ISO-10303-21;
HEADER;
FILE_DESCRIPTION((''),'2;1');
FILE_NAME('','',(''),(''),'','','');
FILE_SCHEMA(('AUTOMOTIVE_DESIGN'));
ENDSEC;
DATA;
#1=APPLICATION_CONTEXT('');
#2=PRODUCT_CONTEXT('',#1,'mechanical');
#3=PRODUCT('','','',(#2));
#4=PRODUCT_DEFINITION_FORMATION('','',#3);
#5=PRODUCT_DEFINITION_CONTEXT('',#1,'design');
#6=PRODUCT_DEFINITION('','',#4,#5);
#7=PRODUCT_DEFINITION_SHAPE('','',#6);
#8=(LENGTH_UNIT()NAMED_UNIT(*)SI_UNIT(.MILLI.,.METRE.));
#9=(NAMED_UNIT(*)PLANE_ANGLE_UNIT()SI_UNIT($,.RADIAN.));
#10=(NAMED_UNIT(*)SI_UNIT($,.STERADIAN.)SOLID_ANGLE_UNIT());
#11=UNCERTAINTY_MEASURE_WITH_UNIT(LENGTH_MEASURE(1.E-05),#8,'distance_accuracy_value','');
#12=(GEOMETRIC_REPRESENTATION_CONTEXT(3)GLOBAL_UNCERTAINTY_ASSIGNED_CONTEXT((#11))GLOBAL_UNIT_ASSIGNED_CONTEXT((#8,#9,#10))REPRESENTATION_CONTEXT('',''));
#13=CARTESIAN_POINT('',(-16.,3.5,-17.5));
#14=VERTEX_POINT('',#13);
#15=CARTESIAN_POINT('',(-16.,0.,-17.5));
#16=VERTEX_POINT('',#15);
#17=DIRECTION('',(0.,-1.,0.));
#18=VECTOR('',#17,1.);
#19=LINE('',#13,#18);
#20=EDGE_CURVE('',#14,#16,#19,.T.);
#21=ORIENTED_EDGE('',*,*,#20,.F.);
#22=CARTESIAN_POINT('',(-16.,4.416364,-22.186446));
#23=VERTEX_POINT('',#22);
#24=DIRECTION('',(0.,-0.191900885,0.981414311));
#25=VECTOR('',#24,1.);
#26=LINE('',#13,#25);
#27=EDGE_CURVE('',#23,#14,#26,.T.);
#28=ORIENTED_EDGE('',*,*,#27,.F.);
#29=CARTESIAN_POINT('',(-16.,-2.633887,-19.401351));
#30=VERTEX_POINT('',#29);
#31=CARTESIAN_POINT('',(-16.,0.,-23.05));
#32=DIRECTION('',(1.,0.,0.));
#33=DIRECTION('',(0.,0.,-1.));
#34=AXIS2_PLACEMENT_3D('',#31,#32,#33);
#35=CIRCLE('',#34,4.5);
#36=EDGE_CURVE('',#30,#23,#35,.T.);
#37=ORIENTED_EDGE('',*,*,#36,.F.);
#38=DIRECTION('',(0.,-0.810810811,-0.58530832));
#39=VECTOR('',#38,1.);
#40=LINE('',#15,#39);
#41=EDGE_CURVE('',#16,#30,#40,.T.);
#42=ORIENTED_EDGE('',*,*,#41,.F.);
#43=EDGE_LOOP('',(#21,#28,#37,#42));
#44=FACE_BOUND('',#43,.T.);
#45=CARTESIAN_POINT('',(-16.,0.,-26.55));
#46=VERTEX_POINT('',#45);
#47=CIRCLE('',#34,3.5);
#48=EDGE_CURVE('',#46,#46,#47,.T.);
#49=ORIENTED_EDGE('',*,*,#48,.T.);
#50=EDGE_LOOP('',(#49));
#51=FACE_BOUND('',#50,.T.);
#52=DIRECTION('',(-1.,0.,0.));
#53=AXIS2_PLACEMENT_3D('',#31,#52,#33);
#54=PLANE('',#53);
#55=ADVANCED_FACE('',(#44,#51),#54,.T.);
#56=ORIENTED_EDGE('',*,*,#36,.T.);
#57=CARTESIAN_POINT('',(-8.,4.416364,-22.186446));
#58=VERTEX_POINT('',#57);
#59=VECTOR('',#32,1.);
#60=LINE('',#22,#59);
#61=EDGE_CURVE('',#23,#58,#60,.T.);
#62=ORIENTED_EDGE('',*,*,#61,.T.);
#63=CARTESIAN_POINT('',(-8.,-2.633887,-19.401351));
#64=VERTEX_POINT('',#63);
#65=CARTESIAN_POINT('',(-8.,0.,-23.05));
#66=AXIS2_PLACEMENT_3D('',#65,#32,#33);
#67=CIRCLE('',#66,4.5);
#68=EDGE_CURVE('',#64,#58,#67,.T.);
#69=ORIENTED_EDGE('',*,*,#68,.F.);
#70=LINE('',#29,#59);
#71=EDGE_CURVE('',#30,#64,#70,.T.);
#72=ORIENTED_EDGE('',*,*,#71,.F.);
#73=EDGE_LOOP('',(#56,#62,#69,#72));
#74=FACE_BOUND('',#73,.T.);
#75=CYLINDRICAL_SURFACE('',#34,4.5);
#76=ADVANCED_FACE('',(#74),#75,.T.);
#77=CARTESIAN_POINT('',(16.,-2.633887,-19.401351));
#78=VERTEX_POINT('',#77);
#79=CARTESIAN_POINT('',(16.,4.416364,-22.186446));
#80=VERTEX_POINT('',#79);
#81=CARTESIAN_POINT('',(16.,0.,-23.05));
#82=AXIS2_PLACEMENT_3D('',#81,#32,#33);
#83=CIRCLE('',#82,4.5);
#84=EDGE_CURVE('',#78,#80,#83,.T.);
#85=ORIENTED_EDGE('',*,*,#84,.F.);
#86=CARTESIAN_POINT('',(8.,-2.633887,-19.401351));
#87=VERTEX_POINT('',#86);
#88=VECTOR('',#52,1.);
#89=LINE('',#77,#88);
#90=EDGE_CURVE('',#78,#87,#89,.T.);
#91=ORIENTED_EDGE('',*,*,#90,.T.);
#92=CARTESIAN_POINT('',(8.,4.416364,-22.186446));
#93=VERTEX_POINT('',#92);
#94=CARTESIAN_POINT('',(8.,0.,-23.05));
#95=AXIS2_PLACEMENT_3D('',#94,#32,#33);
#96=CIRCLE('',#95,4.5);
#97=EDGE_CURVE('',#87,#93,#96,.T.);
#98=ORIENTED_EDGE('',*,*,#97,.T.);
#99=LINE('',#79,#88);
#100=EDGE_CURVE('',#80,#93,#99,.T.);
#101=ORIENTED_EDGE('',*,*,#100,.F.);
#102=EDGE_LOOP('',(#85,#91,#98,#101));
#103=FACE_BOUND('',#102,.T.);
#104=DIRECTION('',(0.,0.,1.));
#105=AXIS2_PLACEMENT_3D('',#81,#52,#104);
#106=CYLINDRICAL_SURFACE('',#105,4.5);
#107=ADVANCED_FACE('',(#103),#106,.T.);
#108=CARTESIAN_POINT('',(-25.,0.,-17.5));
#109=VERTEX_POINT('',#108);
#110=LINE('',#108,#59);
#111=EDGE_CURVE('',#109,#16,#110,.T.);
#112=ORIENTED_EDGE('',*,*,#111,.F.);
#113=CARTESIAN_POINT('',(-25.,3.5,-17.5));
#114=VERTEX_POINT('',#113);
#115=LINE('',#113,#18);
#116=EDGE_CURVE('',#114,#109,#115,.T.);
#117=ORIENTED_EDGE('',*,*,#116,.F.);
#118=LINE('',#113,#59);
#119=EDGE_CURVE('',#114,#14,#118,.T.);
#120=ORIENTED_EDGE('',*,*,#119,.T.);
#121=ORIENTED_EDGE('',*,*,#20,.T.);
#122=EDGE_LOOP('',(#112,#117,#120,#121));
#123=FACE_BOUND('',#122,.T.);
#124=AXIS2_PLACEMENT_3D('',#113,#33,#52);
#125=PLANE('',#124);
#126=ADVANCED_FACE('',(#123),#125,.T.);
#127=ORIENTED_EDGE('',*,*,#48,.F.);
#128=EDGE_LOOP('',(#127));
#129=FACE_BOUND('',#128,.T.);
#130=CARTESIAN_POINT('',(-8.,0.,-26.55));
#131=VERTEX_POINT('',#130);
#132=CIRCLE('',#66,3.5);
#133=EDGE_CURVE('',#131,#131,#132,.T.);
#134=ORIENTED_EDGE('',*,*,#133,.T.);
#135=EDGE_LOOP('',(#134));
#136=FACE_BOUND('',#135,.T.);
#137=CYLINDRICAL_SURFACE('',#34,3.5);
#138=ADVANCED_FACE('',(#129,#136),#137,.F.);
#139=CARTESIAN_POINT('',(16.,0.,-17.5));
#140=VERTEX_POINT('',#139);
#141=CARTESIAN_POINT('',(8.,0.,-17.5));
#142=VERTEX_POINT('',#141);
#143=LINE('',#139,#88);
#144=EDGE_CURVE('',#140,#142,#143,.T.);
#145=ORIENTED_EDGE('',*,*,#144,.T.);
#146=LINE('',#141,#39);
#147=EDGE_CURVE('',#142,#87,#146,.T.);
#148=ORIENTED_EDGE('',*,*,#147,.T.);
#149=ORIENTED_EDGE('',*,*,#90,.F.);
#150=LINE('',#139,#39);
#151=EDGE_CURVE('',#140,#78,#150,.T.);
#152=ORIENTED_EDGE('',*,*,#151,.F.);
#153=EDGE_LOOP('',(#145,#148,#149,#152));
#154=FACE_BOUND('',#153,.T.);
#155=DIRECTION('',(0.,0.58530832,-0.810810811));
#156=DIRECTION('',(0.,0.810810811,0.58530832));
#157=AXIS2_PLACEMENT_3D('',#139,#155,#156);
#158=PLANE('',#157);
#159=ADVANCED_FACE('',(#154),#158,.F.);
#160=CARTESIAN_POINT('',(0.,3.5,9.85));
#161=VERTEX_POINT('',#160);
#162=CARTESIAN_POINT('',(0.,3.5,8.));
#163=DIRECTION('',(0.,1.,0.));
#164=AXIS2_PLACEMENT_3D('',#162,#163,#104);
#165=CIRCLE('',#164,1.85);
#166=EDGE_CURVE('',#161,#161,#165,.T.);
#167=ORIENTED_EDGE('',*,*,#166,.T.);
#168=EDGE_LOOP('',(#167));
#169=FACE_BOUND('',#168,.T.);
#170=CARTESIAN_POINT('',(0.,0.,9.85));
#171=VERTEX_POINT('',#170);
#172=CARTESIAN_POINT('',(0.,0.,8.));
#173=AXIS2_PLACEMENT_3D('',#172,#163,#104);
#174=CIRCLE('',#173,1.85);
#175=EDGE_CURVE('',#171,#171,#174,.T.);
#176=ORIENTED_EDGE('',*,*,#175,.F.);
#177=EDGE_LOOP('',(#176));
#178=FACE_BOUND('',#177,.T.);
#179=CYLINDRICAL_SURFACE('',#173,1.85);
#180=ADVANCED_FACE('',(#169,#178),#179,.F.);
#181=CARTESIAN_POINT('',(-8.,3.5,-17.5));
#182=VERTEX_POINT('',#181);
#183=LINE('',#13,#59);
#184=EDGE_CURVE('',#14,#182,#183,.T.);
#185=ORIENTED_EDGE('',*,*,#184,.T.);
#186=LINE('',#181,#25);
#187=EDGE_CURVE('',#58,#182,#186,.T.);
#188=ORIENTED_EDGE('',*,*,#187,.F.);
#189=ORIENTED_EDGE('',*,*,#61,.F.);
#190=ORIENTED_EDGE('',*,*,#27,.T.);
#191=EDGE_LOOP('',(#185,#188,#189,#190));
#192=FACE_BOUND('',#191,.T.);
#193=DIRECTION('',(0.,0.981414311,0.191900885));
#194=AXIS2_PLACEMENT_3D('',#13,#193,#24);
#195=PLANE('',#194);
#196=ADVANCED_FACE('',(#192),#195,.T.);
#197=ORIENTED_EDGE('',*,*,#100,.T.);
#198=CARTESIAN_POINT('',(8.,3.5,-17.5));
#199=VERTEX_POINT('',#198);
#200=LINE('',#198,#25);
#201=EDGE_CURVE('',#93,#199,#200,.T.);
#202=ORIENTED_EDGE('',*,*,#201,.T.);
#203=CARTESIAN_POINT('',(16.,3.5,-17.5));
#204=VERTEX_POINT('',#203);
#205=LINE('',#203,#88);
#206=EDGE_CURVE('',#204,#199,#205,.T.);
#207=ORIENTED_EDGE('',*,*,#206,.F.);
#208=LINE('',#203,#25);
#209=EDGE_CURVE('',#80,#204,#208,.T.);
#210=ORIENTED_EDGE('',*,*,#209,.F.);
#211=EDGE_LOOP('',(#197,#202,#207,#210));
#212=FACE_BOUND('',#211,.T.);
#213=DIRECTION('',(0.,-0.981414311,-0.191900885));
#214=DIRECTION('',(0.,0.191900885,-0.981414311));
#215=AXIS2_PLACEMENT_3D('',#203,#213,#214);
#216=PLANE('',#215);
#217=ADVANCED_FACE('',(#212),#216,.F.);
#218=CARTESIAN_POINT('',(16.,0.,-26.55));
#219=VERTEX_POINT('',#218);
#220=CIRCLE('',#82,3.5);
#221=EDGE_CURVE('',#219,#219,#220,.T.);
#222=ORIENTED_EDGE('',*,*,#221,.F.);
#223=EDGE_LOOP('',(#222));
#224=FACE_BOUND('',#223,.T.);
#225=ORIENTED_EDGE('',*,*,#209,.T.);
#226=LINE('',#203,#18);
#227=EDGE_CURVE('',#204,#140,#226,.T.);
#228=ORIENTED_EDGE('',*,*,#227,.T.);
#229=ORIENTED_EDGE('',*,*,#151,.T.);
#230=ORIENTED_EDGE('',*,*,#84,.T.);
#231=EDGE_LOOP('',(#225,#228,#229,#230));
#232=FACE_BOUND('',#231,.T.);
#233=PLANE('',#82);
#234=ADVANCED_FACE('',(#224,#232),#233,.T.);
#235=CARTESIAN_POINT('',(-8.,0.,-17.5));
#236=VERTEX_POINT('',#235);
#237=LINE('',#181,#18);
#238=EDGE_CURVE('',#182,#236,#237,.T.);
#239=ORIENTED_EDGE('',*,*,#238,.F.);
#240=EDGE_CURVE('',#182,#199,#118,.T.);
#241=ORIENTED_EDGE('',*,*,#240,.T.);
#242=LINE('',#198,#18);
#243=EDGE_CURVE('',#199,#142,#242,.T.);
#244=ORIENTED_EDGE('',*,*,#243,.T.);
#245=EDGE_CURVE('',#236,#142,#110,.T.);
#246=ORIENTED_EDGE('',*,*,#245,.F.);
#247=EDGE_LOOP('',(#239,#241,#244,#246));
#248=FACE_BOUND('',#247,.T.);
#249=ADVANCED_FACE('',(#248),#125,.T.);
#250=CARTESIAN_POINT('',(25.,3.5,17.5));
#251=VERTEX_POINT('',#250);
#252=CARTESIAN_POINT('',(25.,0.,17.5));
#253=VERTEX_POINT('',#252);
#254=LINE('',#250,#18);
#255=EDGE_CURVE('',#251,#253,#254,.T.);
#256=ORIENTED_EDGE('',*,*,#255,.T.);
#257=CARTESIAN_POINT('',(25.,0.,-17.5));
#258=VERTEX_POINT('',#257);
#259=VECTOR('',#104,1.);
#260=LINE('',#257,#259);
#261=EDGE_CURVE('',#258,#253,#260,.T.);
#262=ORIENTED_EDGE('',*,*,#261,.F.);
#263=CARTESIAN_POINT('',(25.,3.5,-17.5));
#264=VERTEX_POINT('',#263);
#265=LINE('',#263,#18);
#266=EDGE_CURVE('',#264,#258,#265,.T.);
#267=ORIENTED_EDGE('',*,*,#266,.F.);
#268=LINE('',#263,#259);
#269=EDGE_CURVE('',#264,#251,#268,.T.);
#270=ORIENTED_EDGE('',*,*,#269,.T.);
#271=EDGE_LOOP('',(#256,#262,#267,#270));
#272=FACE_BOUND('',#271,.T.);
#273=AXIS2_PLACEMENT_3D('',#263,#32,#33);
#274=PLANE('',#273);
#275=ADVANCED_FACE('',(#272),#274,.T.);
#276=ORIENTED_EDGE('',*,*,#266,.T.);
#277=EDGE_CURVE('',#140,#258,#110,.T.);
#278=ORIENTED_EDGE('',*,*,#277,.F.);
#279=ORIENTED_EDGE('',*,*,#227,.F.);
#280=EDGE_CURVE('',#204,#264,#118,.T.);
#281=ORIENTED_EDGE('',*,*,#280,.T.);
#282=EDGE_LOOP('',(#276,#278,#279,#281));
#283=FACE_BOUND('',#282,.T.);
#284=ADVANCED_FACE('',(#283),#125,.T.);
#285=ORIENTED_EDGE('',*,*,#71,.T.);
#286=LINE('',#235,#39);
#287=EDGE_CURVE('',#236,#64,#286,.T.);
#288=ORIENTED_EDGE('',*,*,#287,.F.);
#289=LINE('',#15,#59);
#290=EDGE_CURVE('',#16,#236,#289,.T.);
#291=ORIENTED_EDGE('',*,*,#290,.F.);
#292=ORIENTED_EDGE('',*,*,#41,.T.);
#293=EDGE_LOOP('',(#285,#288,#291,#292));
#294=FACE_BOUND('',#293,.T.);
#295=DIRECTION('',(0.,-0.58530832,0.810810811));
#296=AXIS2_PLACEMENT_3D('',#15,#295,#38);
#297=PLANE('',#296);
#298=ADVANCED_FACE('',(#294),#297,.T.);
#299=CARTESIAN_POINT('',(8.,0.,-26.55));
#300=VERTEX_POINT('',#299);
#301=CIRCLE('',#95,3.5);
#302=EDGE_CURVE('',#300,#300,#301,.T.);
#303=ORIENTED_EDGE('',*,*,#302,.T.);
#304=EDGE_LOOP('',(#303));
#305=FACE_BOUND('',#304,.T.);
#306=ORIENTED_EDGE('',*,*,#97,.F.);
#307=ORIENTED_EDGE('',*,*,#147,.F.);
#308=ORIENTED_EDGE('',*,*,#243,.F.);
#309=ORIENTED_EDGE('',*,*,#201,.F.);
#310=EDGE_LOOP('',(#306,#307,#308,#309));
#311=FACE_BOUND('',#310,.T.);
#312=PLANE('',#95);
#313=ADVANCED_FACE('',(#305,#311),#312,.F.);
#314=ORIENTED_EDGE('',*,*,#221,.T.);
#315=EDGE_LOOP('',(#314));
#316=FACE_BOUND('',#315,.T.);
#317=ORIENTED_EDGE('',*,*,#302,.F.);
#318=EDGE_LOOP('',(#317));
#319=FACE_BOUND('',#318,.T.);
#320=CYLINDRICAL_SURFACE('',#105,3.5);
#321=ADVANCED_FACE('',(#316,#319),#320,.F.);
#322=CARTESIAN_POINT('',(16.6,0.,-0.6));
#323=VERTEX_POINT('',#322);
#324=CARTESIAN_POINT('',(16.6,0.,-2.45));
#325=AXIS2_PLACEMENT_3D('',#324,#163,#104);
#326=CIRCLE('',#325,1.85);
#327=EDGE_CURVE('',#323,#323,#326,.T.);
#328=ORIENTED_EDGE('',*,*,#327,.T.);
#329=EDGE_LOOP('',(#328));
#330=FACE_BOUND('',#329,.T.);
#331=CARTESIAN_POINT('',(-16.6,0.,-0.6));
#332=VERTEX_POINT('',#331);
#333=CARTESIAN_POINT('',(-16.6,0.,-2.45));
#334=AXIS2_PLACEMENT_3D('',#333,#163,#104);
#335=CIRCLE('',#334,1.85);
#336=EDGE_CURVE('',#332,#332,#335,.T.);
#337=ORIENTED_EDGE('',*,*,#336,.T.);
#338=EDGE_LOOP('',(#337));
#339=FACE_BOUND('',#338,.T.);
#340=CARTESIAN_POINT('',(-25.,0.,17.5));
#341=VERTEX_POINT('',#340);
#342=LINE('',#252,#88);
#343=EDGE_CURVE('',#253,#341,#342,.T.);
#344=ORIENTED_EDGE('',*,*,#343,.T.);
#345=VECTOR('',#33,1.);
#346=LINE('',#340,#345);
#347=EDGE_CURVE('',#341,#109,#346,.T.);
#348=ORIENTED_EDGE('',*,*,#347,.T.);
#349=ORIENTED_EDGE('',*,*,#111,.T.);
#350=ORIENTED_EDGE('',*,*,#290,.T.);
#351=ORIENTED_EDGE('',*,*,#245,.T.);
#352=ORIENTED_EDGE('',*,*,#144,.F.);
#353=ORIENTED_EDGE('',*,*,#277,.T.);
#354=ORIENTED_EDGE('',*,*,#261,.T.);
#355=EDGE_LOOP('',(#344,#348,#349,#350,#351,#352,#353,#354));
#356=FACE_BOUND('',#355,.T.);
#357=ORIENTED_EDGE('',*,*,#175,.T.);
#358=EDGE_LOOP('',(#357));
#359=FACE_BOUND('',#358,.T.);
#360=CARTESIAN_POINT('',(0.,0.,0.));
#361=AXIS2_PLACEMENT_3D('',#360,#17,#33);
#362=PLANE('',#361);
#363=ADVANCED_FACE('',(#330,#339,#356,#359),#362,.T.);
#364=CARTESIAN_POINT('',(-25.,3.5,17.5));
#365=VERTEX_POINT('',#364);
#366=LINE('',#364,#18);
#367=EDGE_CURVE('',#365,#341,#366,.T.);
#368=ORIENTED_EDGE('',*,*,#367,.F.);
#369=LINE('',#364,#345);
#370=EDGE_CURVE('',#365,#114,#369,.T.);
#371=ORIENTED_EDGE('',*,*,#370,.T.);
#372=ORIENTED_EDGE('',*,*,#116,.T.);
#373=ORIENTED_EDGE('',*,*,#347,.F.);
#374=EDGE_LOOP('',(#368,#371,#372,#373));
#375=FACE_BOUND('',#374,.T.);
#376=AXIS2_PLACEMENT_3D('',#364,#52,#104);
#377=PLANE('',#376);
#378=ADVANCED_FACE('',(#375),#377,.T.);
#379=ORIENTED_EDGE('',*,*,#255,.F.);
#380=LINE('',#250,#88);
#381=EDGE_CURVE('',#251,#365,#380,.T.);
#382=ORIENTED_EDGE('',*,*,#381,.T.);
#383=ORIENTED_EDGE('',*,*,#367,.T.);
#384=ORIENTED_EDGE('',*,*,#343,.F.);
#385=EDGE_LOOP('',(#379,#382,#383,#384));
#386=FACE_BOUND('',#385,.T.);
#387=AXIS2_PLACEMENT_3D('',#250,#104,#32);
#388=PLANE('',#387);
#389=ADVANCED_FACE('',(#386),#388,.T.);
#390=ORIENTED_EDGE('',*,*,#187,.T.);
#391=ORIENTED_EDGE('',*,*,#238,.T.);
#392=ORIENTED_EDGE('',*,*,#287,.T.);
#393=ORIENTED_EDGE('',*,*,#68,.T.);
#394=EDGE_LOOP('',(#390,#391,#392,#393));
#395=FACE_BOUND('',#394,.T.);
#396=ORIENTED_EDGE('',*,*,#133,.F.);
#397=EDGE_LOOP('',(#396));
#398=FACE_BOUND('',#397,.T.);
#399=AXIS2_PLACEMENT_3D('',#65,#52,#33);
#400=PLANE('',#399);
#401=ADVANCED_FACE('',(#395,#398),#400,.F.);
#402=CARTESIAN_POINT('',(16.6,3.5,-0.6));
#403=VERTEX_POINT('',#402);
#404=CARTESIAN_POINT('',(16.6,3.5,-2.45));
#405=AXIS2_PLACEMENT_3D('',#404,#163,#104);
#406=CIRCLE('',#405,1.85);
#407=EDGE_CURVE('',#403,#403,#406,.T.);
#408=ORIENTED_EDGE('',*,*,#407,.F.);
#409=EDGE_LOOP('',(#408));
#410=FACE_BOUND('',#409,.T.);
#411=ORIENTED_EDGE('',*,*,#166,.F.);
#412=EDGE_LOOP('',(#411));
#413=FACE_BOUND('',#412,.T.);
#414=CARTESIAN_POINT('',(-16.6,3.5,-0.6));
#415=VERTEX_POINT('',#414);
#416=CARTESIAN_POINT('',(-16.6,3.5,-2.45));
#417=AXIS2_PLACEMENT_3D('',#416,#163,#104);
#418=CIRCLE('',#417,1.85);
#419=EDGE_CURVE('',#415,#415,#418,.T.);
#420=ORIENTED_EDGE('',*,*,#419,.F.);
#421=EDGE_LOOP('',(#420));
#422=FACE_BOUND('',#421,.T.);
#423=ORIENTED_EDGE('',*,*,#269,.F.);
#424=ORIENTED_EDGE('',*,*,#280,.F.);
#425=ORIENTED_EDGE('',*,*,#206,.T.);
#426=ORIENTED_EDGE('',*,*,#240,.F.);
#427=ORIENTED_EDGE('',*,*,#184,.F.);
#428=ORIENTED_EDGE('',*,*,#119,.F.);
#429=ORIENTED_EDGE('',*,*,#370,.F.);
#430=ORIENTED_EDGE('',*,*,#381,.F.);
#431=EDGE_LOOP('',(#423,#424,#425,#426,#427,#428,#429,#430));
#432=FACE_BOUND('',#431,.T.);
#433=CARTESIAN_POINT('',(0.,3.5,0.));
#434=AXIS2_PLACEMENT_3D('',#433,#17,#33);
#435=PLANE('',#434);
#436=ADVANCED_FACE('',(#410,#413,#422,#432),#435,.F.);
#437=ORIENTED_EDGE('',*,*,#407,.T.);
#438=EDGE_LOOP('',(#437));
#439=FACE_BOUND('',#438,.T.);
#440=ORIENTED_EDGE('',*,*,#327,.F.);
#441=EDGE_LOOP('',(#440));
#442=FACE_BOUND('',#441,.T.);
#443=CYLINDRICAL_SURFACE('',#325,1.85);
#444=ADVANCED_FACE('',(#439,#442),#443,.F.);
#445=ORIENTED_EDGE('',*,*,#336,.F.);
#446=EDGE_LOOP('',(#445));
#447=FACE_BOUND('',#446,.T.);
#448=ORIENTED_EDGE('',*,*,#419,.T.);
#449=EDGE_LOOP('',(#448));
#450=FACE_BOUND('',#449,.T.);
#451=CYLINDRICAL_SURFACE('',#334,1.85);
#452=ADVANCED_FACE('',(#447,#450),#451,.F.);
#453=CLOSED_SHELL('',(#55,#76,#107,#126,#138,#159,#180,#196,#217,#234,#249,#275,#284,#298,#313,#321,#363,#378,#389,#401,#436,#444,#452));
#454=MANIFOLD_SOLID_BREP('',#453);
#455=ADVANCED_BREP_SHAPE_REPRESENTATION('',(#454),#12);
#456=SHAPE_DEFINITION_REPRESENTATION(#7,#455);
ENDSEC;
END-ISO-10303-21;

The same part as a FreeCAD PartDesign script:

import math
import FreeCAD as App
import Part
import Sketcher
Q = App.Units.Quantity

doc = App.newDocument("Part")
body = doc.addObject("PartDesign::Body", "Body")

# Sketch on XZ plane
sketch1 = doc.addObject("Sketcher::SketchObject", "Sketch")
body.addObject(sketch1)
sketch1.AttachmentSupport = (doc.XZ_Plane, [""])
sketch1.MapMode = "FlatFace"
sketch1.addGeometry([
    Part.LineSegment(App.Vector(-25, -18, 0), App.Vector(-25, 18, 0)),
    Part.LineSegment(App.Vector(-25, 18, 0), App.Vector(25, 18, 0)),
    Part.LineSegment(App.Vector(25, 18, 0), App.Vector(25, -18, 0)),
    Part.LineSegment(App.Vector(25, -18, 0), App.Vector(-25, -18, 0)),
], False)
sketch1.addConstraint([
    Sketcher.Constraint("Coincident", 0, 2, 1, 1),
    Sketcher.Constraint("Coincident", 1, 2, 2, 1),
    Sketcher.Constraint("Coincident", 2, 2, 3, 1),
    Sketcher.Constraint("Coincident", 3, 2, 0, 1),
    Sketcher.Constraint("Vertical", 0),
    Sketcher.Constraint("Horizontal", 1),
    Sketcher.Constraint("Vertical", 2),
    Sketcher.Constraint("Horizontal", 3),
    Sketcher.Constraint("Symmetric", 0, 2, 2, 2, -1, 1),
    Sketcher.Constraint("DistanceX", 1, 1, 1, 2, Q("50 mm")),
    Sketcher.Constraint("DistanceY", 0, 1, 0, 2, Q("35 mm")),
])
pad1 = doc.addObject("PartDesign::Pad", "Pad")
body.addObject(pad1)
pad1.Profile = sketch1
pad1.Length = 3.5
pad1.Reversed = True

# Sketch on XZ plane
sketch2 = doc.addObject("Sketcher::SketchObject", "Sketch001")
body.addObject(sketch2)
sketch2.AttachmentSupport = (doc.XZ_Plane, [""])
sketch2.MapMode = "FlatFace"
sketch2.AttachmentOffset = App.Placement(App.Vector(0, 0, -3.5), App.Rotation())
sketch2.addGeometry([
    Part.Circle(App.Vector(-16.6, -2.5, 0), App.Vector(0, 0, 1), 1.9),
    Part.Circle(App.Vector(0, 8, 0), App.Vector(0, 0, 1), 1.9),
    Part.Circle(App.Vector(16.6, -2.5, 0), App.Vector(0, 0, 1), 1.9),
], False)
sketch2.addConstraint([
    Sketcher.Constraint("Equal", 0, 1),
    Sketcher.Constraint("Equal", 1, 2),
    Sketcher.Constraint("Symmetric", 0, 3, 2, 3, -2),
    Sketcher.Constraint("PointOnObject", 1, 3, -2),
    Sketcher.Constraint("Diameter", 0, Q("3.7 mm")),
    Sketcher.Constraint("DistanceY", -1, 1, 1, 3, Q("8 mm")),
    Sketcher.Constraint("DistanceX", 0, 3, -1, 1, Q("16.6 mm")),
    Sketcher.Constraint("DistanceY", 0, 3, -1, 1, Q("2.45 mm")),
])
pocket1 = doc.addObject("PartDesign::Pocket", "Pocket")
body.addObject(pocket1)
pocket1.Profile = sketch2
pocket1.Type = "ThroughAll"
pocket1.Reversed = True

# Sketch on YZ plane
sketch3 = doc.addObject("Sketcher::SketchObject", "Sketch002")
body.addObject(sketch3)
sketch3.AttachmentSupport = (doc.YZ_Plane, [""])
sketch3.MapMode = "FlatFace"
sketch3.AttachmentOffset = App.Placement(App.Vector(0, 0, 8), App.Rotation())
sketch3.addGeometry([
    Part.LineSegment(App.Vector(4.4, -22.2, 0), App.Vector(3.5, -17.5, 0)),  # 0
    Part.LineSegment(App.Vector(3.5, -17.5, 0), App.Vector(0, -17.5, 0)),  # 1
    Part.LineSegment(App.Vector(0, -17.5, 0), App.Vector(-2.6, -19.4, 0)),  # 2
    Part.ArcOfCircle(Part.Circle(App.Vector(0, -23.1, 0), App.Vector(0, 0, 1), 4.5), math.radians(126), math.radians(371)),  # 3
    Part.Circle(App.Vector(0, -23.1, 0), App.Vector(0, 0, 1), 3.5),  # 4
], False)
sketch3.addConstraint([
    Sketcher.Constraint("Coincident", 0, 2, 1, 1),
    Sketcher.Constraint("Coincident", 1, 2, 2, 1),
    Sketcher.Constraint("Tangent", 2, 2, 3, 1),
    Sketcher.Constraint("Tangent", 3, 2, 0, 1),
    Sketcher.Constraint("Horizontal", 1),
    Sketcher.Constraint("Coincident", 4, 3, 3, 3),
    Sketcher.Constraint("PointOnObject", 3, 3, -2),
    Sketcher.Constraint("PointOnObject", 1, 2, -2),
    Sketcher.Constraint("Diameter", 4, Q("7 mm")),
    Sketcher.Constraint("Radius", 3, Q("4.5 mm")),
    Sketcher.Constraint("DistanceX", 1, 2, 1, 1, Q("3.5 mm")),
    Sketcher.Constraint("DistanceY", 0, 2, -1, 1, Q("17.5 mm")),
    Sketcher.Constraint("DistanceY", 3, 3, -1, 1, Q("23.05 mm")),
])
pad2 = doc.addObject("PartDesign::Pad", "Pad001")
body.addObject(pad2)
pad2.Profile = sketch3
pad2.Length = 8
doc.recompute()

mirrored = doc.addObject("PartDesign::Mirrored", "Mirrored")
body.addObject(mirrored)
mirrored.Originals = [pad2]
mirrored.MirrorPlane = (doc.YZ_Plane, [""])
body.Tip = mirrored

doc.recompute()
